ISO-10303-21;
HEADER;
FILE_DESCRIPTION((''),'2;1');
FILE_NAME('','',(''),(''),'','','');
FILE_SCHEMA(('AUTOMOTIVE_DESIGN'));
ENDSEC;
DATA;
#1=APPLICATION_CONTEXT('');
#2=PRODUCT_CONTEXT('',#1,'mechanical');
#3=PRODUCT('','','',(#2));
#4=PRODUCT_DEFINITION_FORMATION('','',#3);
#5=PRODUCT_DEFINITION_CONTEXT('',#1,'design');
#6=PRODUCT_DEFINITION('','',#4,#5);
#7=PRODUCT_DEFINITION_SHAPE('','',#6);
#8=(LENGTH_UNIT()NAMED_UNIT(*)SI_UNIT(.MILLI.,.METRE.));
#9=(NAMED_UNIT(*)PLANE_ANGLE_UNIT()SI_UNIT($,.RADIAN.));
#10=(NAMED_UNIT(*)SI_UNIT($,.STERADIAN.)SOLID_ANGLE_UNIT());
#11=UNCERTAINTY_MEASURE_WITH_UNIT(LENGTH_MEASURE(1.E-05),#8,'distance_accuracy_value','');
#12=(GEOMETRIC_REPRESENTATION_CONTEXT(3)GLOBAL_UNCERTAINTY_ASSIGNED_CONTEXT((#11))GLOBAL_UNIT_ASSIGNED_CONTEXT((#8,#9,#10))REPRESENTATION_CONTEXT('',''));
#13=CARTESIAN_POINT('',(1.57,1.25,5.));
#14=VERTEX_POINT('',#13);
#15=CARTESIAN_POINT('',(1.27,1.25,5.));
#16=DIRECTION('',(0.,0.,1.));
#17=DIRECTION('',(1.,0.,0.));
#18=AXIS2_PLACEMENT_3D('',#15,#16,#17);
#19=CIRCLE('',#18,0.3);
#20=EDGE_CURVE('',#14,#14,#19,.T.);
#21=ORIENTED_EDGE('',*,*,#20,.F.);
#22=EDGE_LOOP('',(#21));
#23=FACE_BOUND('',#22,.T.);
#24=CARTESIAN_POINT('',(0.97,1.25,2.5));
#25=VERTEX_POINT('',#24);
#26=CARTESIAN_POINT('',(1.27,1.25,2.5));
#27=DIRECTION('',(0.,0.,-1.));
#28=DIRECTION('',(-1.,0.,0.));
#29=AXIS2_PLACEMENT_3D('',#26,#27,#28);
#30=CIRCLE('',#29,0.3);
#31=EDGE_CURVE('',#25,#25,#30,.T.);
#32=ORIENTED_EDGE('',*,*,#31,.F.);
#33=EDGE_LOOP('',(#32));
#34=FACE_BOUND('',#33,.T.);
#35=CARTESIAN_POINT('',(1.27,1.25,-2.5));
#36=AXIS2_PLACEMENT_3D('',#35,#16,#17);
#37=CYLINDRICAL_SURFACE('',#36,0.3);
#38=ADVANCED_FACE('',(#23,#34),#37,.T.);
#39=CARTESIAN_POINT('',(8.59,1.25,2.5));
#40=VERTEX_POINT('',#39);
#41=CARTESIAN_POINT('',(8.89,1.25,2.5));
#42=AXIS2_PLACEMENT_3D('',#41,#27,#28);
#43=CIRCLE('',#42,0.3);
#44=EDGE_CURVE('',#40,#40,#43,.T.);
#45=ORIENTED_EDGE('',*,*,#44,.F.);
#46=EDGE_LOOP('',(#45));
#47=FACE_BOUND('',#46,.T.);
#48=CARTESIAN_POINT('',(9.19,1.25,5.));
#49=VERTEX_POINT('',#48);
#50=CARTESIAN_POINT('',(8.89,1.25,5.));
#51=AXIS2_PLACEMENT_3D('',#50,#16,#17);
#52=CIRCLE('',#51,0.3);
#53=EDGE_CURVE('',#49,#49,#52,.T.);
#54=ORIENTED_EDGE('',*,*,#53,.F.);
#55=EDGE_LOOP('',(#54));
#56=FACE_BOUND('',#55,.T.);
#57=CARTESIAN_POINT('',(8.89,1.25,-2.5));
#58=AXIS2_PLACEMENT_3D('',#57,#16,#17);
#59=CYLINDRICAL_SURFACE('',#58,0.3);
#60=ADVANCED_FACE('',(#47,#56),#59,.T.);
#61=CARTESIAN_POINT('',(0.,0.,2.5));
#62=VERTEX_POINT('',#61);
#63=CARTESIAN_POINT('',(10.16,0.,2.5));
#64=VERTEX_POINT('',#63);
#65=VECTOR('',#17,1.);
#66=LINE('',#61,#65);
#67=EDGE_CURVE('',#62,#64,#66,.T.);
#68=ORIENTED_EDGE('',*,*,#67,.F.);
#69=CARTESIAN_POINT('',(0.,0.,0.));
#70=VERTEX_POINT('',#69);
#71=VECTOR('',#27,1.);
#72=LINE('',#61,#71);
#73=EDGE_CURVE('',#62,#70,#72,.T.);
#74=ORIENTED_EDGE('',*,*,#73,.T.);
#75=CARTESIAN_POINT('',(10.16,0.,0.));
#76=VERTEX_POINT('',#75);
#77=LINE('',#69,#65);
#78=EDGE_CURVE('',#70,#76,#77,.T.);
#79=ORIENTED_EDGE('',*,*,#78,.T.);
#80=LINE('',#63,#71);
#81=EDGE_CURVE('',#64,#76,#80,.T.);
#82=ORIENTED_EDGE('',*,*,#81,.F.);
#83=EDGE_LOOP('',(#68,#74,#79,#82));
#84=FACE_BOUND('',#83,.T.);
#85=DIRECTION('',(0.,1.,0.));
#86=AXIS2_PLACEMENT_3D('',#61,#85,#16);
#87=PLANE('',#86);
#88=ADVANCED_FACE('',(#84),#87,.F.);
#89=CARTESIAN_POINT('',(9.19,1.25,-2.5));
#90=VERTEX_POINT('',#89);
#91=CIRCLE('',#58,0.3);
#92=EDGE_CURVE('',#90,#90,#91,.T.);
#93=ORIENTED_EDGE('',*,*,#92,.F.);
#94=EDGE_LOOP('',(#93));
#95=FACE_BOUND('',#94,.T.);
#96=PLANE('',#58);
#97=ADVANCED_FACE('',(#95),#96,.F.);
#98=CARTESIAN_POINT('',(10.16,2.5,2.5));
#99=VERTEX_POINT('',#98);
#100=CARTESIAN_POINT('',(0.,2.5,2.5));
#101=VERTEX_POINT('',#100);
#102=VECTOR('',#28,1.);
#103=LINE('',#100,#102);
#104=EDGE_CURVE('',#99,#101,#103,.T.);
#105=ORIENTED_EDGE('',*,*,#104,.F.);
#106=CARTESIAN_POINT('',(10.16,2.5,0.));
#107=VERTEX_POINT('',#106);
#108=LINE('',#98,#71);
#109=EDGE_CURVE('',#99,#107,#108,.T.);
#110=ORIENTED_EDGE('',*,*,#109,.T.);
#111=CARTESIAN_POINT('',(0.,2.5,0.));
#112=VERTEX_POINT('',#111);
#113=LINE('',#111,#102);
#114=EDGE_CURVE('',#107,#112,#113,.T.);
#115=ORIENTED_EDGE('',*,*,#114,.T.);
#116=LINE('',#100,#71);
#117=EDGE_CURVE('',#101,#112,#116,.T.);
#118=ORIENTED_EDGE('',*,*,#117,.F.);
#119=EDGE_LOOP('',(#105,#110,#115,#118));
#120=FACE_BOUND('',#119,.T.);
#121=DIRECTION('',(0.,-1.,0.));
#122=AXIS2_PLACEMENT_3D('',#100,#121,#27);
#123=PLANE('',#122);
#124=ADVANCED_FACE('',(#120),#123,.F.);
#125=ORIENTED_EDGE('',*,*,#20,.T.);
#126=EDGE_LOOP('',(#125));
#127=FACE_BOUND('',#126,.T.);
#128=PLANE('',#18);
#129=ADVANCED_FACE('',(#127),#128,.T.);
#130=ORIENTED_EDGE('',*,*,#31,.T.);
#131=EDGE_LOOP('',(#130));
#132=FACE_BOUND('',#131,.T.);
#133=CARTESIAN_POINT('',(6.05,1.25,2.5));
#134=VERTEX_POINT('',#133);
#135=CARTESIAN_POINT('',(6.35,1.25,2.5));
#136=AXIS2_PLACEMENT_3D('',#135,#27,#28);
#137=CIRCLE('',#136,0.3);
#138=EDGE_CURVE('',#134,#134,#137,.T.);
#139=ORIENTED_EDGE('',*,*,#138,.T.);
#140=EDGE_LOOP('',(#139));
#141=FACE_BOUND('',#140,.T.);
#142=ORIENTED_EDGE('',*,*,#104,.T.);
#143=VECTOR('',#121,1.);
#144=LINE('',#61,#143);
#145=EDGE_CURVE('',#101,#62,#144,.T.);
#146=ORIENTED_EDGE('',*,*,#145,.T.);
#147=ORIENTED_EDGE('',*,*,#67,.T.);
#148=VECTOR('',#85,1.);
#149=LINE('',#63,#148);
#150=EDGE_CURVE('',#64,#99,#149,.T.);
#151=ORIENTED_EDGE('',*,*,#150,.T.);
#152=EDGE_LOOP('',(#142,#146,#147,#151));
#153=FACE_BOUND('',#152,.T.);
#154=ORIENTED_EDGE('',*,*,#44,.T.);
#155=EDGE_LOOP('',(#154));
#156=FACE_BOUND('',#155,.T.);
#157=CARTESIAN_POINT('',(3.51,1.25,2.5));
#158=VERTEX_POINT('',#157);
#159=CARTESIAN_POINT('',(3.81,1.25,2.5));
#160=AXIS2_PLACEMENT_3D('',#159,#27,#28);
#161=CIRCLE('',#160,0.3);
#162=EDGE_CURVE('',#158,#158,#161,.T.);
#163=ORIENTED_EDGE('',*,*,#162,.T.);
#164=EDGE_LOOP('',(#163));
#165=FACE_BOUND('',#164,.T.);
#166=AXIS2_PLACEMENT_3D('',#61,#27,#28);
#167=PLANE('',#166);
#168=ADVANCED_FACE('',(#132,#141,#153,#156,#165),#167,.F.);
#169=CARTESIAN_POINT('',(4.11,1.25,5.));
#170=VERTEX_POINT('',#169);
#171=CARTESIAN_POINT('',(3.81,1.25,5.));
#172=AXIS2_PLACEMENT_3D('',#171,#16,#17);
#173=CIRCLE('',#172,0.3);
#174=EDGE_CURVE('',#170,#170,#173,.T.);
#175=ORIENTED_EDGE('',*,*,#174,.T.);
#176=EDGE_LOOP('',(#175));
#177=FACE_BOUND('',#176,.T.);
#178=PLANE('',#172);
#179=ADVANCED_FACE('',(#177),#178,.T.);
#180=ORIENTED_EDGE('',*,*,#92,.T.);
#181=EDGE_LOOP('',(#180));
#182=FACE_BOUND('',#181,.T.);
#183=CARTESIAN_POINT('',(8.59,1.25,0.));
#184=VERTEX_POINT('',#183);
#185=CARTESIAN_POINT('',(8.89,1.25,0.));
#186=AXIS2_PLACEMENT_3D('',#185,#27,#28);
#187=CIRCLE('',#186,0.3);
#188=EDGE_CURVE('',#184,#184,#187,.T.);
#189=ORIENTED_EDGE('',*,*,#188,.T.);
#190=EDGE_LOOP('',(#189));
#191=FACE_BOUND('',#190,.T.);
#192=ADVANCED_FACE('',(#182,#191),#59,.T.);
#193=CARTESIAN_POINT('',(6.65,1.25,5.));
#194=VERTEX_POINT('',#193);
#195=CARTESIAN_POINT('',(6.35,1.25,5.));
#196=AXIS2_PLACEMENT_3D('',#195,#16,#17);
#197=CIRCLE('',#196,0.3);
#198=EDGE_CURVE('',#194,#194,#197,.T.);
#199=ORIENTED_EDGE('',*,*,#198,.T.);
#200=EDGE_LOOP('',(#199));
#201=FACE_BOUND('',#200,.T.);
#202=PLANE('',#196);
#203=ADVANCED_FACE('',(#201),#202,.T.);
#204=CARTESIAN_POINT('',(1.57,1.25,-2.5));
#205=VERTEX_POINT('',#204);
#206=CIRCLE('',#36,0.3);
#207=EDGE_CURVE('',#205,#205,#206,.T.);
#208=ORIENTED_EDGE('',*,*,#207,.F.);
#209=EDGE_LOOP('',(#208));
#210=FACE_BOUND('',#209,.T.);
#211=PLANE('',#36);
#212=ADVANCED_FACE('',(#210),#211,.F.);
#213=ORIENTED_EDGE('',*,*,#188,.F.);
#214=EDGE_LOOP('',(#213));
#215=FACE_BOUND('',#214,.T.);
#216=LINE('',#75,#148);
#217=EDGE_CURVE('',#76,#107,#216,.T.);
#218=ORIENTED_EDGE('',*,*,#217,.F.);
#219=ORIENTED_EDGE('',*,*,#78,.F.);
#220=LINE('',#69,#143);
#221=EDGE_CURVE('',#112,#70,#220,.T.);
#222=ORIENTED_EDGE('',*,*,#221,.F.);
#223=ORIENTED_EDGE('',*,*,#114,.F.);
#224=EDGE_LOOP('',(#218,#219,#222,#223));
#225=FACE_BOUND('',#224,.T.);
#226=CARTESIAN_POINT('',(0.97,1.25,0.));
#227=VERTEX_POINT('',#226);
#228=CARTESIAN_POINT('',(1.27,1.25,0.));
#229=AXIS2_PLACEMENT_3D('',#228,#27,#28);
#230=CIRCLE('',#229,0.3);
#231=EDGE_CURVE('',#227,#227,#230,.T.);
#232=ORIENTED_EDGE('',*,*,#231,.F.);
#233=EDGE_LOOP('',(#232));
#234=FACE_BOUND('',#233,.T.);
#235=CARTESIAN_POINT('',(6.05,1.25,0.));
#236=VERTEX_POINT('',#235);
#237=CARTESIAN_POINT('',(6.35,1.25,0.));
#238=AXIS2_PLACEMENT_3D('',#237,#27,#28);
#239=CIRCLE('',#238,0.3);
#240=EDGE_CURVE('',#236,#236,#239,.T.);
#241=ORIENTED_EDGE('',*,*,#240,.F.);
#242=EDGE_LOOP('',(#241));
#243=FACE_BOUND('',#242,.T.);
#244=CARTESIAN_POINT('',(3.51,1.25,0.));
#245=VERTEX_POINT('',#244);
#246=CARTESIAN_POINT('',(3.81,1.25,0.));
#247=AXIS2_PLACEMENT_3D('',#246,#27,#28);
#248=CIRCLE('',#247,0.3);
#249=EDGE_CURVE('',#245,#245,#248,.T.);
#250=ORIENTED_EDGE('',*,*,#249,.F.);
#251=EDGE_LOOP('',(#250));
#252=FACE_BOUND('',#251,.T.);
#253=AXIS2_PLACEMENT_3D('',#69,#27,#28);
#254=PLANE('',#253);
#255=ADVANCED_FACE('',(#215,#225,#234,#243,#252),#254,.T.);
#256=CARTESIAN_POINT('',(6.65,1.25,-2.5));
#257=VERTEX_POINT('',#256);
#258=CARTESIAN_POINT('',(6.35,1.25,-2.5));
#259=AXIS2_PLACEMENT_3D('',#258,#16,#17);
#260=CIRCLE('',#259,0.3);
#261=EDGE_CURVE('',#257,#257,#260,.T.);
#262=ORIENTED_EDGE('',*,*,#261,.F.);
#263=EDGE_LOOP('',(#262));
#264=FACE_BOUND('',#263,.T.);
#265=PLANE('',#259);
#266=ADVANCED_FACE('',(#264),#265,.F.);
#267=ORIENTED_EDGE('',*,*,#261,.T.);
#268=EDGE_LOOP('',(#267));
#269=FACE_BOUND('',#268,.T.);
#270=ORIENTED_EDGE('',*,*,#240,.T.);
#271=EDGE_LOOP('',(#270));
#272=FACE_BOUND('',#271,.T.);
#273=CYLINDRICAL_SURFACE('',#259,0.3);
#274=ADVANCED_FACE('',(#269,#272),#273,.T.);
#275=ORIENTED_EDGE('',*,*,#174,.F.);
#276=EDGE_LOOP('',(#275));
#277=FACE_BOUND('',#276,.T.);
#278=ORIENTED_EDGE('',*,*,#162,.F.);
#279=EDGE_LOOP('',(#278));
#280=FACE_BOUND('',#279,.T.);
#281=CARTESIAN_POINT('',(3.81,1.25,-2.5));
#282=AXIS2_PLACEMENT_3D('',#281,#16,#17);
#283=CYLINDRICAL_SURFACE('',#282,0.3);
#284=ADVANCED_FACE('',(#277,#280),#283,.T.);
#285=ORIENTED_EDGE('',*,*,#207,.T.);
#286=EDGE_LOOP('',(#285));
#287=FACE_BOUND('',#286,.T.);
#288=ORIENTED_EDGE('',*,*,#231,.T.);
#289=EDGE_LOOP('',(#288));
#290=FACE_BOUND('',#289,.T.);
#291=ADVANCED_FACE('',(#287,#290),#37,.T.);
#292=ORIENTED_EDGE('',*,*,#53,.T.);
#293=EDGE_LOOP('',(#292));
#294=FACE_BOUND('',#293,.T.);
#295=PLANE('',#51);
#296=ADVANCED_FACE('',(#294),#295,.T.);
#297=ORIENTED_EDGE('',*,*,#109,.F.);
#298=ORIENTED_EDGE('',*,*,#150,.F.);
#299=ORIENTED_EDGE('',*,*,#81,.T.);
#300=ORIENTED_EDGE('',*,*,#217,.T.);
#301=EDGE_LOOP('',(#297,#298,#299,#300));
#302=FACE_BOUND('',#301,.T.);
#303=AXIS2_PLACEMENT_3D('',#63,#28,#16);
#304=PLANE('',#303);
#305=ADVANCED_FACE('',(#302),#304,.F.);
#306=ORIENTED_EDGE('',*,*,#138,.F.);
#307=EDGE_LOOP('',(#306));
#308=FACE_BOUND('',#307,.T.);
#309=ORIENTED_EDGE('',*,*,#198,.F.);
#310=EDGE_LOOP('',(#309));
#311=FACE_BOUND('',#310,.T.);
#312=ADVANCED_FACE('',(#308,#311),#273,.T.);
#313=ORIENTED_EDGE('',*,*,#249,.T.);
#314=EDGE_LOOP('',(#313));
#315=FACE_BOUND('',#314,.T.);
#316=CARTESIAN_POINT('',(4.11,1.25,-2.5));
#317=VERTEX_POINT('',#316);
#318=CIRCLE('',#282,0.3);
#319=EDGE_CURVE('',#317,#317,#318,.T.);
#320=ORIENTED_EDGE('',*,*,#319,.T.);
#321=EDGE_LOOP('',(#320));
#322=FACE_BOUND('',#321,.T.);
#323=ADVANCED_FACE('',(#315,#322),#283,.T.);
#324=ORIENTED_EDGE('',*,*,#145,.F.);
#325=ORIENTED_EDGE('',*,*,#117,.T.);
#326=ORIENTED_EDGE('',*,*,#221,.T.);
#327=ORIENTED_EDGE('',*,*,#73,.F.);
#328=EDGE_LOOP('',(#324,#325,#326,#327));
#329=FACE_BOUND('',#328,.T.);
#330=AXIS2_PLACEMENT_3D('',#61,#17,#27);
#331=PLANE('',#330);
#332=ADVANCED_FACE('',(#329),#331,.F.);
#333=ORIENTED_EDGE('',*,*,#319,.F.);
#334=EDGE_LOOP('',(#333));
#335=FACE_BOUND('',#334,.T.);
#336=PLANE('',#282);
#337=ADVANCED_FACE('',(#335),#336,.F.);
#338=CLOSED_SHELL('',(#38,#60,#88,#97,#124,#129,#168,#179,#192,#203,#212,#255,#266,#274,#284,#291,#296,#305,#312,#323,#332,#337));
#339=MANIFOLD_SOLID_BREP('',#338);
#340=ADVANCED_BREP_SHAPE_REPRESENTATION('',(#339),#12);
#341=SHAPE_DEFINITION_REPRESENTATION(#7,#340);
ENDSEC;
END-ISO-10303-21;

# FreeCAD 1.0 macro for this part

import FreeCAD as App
import Part
import Sketcher

doc = App.newDocument("Part")
body = doc.addObject("PartDesign::Body", "Body")

sketch1 = doc.addObject("Sketcher::SketchObject", "Sketch")
body.addObject(sketch1)
sketch1.AttachmentSupport = (doc.XY_Plane, [""])
sketch1.MapMode = "FlatFace"
sketch1.addGeometry(Part.LineSegment(App.Vector(0, 2.5, 0), App.Vector(0, 0, 0)), False)
sketch1.addGeometry(Part.LineSegment(App.Vector(0, 0, 0), App.Vector(10.2, 0, 0)), False)
sketch1.addGeometry(Part.LineSegment(App.Vector(10.2, 0, 0), App.Vector(10.2, 2.5, 0)), False)
sketch1.addGeometry(Part.LineSegment(App.Vector(10.2, 2.5, 0), App.Vector(0, 2.5, 0)), False)
sketch1.addConstraint(Sketcher.Constraint("Coincident", 0, 2, 1, 1))
sketch1.addConstraint(Sketcher.Constraint("Coincident", 1, 2, 2, 1))
sketch1.addConstraint(Sketcher.Constraint("Coincident", 2, 2, 3, 1))
sketch1.addConstraint(Sketcher.Constraint("Coincident", 3, 2, 0, 1))
sketch1.addConstraint(Sketcher.Constraint("Vertical", 0))
sketch1.addConstraint(Sketcher.Constraint("Horizontal", 1))
sketch1.addConstraint(Sketcher.Constraint("Vertical", 2))
sketch1.addConstraint(Sketcher.Constraint("Horizontal", 3))
sketch1.addConstraint(Sketcher.Constraint("Coincident", 0, 2, -1, 1))
sketch1.addConstraint(Sketcher.Constraint("DistanceY", 0, 2, 0, 1, 2.5))
sketch1.addConstraint(Sketcher.Constraint("DistanceX", 1, 1, 1, 2, 10.16))
pad1 = doc.addObject("PartDesign::Pad", "Pad")
body.addObject(pad1)
pad1.Profile = sketch1
pad1.Length = 2.5

sketch2 = doc.addObject("Sketcher::SketchObject", "Sketch001")
body.addObject(sketch2)
sketch2.AttachmentSupport = (doc.XY_Plane, [""])
sketch2.MapMode = "FlatFace"
sketch2.AttachmentOffset = App.Placement(App.Vector(0, 0, -2.5), App.Rotation())
sketch2.addGeometry(Part.Circle(App.Vector(3.81, 1.25, 0), App.Vector(0, 0, 1), 0.3), False)
sketch2.addConstraint(Sketcher.Constraint("Diameter", 0, 0.6))
sketch2.addConstraint(Sketcher.Constraint("DistanceX", -1, 1, 0, 3, 3.81))
sketch2.addConstraint(Sketcher.Constraint("DistanceY", -1, 1, 0, 3, 1.25))
pad2 = doc.addObject("PartDesign::Pad", "Pad001")
body.addObject(pad2)
pad2.Profile = sketch2
pad2.Length = 7.5
doc.recompute()

linearpattern = doc.addObject("PartDesign::LinearPattern", "LinearPattern")
body.addObject(linearpattern)
linearpattern.Originals = [pad2]
linearpattern.Direction = (doc.X_Axis, [""])
linearpattern.Mode = "offset"
linearpattern.Offset = 2.54
linearpattern.Occurrences = 3
body.Tip = linearpattern
doc.recompute()

linearpattern2 = doc.addObject("PartDesign::LinearPattern", "LinearPattern001")
body.addObject(linearpattern2)
linearpattern2.Originals = [pad2]
linearpattern2.Direction = (doc.X_Axis, [""])
linearpattern2.Mode = "offset"
linearpattern2.Offset = 2.54
linearpattern2.Occurrences = 2
linearpattern2.Reversed = True
body.Tip = linearpattern2

doc.recompute()
